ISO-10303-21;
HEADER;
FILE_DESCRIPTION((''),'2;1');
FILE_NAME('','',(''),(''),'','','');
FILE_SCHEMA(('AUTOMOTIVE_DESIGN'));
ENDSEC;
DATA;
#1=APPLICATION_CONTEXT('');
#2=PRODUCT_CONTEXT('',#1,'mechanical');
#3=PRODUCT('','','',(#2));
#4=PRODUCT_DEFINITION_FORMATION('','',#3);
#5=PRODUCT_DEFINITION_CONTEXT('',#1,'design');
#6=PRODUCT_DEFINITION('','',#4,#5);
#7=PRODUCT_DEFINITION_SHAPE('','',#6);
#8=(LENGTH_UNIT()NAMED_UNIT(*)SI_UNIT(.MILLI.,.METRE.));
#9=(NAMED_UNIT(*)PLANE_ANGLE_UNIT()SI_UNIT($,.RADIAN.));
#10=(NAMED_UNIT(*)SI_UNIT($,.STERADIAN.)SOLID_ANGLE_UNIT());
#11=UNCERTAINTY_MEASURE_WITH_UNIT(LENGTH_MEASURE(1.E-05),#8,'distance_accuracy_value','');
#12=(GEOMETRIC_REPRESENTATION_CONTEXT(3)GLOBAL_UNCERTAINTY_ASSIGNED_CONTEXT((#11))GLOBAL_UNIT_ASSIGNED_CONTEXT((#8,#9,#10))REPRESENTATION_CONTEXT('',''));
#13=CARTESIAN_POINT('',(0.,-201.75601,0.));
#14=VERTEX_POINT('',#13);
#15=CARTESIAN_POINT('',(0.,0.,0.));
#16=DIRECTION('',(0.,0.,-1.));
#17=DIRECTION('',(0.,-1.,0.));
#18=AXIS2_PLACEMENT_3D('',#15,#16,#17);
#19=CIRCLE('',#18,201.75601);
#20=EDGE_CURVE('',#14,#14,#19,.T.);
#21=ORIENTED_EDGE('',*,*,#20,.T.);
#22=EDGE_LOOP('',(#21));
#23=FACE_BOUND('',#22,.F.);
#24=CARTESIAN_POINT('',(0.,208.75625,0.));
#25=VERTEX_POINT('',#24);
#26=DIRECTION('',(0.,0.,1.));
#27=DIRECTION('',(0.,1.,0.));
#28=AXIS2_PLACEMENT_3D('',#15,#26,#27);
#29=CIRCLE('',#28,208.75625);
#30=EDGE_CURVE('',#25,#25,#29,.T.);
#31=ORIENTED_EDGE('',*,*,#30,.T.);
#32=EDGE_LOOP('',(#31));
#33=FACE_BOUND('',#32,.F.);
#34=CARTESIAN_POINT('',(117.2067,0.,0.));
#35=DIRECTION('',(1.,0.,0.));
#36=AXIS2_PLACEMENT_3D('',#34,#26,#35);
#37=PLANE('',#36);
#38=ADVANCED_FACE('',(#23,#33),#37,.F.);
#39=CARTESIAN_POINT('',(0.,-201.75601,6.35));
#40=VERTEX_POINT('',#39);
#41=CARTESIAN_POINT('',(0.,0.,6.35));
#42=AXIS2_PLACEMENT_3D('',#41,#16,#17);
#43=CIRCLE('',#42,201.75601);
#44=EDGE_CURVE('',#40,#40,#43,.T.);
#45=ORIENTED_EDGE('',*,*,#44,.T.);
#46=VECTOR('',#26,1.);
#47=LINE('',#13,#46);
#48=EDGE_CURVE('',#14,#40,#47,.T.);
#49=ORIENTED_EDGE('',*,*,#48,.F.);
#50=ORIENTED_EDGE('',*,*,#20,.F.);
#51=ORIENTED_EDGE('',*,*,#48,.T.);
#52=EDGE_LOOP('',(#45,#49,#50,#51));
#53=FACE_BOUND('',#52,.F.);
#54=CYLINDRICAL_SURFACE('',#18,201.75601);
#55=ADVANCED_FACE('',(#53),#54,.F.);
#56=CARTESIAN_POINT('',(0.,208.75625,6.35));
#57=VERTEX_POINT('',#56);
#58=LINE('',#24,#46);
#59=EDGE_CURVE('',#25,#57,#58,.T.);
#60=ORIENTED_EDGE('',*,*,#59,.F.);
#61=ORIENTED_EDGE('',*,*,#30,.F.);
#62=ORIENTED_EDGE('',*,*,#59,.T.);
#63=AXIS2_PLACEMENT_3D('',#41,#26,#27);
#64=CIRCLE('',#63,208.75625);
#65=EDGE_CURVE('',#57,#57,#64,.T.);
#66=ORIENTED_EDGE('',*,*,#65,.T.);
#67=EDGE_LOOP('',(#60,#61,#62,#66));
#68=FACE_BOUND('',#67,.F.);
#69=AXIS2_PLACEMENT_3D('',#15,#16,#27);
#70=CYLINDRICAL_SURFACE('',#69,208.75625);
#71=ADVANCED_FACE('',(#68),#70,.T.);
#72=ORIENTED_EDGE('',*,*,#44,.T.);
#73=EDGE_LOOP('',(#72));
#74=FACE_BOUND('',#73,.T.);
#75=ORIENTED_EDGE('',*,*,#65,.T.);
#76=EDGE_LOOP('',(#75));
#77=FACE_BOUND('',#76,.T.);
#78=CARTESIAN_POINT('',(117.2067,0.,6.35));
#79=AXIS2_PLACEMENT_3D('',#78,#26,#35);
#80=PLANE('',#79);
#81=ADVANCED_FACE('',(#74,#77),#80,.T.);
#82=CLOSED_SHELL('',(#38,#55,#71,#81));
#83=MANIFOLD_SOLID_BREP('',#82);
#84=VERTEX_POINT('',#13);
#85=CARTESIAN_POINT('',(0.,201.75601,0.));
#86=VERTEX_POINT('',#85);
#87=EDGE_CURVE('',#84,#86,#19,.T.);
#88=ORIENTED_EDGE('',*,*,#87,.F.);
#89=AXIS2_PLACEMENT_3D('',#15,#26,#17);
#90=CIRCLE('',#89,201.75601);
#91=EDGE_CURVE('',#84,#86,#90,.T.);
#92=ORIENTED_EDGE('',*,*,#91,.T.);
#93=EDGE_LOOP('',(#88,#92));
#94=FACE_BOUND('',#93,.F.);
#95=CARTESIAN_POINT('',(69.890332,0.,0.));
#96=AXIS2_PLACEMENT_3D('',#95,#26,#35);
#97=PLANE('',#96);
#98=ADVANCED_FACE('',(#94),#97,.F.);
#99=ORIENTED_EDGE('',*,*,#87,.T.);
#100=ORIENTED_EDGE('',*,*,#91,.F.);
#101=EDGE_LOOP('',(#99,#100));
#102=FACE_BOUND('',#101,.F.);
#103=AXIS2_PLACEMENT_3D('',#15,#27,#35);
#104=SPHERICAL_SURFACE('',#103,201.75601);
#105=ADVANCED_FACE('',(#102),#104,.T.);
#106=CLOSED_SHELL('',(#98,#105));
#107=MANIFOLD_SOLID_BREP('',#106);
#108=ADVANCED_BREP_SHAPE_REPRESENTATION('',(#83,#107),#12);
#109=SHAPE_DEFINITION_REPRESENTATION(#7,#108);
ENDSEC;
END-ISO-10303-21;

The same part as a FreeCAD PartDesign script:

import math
import FreeCAD as App
import Part
import Sketcher
from FreeCAD import Vector
Q = App.Units.Quantity

doc = App.newDocument("Part")
body = doc.addObject("PartDesign::Body", "Body")

# Sketch on XY plane
sketch1 = body.newObject("Sketcher::SketchObject", "Sketch")
sketch1.AttachmentSupport = (doc.getObject("XY_Plane"), [""])
sketch1.MapMode = "FlatFace"
sketch1.addGeometry(Part.LineSegment(Vector(0, 201.75601, 0), Vector(0, -201.75601, 0)), False)
sketch1.addGeometry(Part.ArcOfCircle(Part.Circle(Vector(0, 0, 0), Vector(0, 0, 1), 201.75601), math.radians(-90), math.radians(90)), False)
sketch1.addConstraint(Sketcher.Constraint("Coincident", 0, 1, 1, 2))
sketch1.addConstraint(Sketcher.Constraint("Coincident", 1, 1, 0, 2))
sketch1.addConstraint(Sketcher.Constraint("Vertical", 0))
sketch1.addConstraint(Sketcher.Constraint("Coincident", 1, 3, -1, 1))
sketch1.addConstraint(Sketcher.Constraint("PointOnObject", 0, 1, -2))
sketch1.addConstraint(Sketcher.Constraint("DistanceY", 0, 2, 0, 1, Q("15.8863 in")))
revolution = body.newObject("PartDesign::Revolution", "Revolution")
revolution.Profile = sketch1
revolution.ReferenceAxis = (sketch1, ["V_Axis"])
revolution.Angle = 180
revolution.Reversed = True
body2 = doc.addObject("PartDesign::Body", "Body001")

# Sketch on XY plane
sketch2 = body2.newObject("Sketcher::SketchObject", "Sketch001")
sketch2.AttachmentSupport = (doc.getObject("XY_Plane001"), [""])
sketch2.MapMode = "FlatFace"
sketch2.addGeometry(Part.Circle(Vector(0, 0, 0), Vector(0, 0, 1), 208.75625), False)
sketch2.addGeometry(Part.Circle(Vector(0, 0, 0), Vector(0, 0, 1), 201.75601), False)
sketch2.addConstraint(Sketcher.Constraint("Coincident", 0, 3, -1, 1))
sketch2.addConstraint(Sketcher.Constraint("Coincident", 1, 3, -1, 1))
sketch2.addConstraint(Sketcher.Constraint("Diameter", 0, Q("16.4375 in")))
sketch2.addConstraint(Sketcher.Constraint("Diameter", 1, Q("15.8863 in")))
pad1 = body2.newObject("PartDesign::Pad", "Pad")
pad1.Profile = sketch2
pad1.Length = Q("0.25 in")

doc.recompute()
